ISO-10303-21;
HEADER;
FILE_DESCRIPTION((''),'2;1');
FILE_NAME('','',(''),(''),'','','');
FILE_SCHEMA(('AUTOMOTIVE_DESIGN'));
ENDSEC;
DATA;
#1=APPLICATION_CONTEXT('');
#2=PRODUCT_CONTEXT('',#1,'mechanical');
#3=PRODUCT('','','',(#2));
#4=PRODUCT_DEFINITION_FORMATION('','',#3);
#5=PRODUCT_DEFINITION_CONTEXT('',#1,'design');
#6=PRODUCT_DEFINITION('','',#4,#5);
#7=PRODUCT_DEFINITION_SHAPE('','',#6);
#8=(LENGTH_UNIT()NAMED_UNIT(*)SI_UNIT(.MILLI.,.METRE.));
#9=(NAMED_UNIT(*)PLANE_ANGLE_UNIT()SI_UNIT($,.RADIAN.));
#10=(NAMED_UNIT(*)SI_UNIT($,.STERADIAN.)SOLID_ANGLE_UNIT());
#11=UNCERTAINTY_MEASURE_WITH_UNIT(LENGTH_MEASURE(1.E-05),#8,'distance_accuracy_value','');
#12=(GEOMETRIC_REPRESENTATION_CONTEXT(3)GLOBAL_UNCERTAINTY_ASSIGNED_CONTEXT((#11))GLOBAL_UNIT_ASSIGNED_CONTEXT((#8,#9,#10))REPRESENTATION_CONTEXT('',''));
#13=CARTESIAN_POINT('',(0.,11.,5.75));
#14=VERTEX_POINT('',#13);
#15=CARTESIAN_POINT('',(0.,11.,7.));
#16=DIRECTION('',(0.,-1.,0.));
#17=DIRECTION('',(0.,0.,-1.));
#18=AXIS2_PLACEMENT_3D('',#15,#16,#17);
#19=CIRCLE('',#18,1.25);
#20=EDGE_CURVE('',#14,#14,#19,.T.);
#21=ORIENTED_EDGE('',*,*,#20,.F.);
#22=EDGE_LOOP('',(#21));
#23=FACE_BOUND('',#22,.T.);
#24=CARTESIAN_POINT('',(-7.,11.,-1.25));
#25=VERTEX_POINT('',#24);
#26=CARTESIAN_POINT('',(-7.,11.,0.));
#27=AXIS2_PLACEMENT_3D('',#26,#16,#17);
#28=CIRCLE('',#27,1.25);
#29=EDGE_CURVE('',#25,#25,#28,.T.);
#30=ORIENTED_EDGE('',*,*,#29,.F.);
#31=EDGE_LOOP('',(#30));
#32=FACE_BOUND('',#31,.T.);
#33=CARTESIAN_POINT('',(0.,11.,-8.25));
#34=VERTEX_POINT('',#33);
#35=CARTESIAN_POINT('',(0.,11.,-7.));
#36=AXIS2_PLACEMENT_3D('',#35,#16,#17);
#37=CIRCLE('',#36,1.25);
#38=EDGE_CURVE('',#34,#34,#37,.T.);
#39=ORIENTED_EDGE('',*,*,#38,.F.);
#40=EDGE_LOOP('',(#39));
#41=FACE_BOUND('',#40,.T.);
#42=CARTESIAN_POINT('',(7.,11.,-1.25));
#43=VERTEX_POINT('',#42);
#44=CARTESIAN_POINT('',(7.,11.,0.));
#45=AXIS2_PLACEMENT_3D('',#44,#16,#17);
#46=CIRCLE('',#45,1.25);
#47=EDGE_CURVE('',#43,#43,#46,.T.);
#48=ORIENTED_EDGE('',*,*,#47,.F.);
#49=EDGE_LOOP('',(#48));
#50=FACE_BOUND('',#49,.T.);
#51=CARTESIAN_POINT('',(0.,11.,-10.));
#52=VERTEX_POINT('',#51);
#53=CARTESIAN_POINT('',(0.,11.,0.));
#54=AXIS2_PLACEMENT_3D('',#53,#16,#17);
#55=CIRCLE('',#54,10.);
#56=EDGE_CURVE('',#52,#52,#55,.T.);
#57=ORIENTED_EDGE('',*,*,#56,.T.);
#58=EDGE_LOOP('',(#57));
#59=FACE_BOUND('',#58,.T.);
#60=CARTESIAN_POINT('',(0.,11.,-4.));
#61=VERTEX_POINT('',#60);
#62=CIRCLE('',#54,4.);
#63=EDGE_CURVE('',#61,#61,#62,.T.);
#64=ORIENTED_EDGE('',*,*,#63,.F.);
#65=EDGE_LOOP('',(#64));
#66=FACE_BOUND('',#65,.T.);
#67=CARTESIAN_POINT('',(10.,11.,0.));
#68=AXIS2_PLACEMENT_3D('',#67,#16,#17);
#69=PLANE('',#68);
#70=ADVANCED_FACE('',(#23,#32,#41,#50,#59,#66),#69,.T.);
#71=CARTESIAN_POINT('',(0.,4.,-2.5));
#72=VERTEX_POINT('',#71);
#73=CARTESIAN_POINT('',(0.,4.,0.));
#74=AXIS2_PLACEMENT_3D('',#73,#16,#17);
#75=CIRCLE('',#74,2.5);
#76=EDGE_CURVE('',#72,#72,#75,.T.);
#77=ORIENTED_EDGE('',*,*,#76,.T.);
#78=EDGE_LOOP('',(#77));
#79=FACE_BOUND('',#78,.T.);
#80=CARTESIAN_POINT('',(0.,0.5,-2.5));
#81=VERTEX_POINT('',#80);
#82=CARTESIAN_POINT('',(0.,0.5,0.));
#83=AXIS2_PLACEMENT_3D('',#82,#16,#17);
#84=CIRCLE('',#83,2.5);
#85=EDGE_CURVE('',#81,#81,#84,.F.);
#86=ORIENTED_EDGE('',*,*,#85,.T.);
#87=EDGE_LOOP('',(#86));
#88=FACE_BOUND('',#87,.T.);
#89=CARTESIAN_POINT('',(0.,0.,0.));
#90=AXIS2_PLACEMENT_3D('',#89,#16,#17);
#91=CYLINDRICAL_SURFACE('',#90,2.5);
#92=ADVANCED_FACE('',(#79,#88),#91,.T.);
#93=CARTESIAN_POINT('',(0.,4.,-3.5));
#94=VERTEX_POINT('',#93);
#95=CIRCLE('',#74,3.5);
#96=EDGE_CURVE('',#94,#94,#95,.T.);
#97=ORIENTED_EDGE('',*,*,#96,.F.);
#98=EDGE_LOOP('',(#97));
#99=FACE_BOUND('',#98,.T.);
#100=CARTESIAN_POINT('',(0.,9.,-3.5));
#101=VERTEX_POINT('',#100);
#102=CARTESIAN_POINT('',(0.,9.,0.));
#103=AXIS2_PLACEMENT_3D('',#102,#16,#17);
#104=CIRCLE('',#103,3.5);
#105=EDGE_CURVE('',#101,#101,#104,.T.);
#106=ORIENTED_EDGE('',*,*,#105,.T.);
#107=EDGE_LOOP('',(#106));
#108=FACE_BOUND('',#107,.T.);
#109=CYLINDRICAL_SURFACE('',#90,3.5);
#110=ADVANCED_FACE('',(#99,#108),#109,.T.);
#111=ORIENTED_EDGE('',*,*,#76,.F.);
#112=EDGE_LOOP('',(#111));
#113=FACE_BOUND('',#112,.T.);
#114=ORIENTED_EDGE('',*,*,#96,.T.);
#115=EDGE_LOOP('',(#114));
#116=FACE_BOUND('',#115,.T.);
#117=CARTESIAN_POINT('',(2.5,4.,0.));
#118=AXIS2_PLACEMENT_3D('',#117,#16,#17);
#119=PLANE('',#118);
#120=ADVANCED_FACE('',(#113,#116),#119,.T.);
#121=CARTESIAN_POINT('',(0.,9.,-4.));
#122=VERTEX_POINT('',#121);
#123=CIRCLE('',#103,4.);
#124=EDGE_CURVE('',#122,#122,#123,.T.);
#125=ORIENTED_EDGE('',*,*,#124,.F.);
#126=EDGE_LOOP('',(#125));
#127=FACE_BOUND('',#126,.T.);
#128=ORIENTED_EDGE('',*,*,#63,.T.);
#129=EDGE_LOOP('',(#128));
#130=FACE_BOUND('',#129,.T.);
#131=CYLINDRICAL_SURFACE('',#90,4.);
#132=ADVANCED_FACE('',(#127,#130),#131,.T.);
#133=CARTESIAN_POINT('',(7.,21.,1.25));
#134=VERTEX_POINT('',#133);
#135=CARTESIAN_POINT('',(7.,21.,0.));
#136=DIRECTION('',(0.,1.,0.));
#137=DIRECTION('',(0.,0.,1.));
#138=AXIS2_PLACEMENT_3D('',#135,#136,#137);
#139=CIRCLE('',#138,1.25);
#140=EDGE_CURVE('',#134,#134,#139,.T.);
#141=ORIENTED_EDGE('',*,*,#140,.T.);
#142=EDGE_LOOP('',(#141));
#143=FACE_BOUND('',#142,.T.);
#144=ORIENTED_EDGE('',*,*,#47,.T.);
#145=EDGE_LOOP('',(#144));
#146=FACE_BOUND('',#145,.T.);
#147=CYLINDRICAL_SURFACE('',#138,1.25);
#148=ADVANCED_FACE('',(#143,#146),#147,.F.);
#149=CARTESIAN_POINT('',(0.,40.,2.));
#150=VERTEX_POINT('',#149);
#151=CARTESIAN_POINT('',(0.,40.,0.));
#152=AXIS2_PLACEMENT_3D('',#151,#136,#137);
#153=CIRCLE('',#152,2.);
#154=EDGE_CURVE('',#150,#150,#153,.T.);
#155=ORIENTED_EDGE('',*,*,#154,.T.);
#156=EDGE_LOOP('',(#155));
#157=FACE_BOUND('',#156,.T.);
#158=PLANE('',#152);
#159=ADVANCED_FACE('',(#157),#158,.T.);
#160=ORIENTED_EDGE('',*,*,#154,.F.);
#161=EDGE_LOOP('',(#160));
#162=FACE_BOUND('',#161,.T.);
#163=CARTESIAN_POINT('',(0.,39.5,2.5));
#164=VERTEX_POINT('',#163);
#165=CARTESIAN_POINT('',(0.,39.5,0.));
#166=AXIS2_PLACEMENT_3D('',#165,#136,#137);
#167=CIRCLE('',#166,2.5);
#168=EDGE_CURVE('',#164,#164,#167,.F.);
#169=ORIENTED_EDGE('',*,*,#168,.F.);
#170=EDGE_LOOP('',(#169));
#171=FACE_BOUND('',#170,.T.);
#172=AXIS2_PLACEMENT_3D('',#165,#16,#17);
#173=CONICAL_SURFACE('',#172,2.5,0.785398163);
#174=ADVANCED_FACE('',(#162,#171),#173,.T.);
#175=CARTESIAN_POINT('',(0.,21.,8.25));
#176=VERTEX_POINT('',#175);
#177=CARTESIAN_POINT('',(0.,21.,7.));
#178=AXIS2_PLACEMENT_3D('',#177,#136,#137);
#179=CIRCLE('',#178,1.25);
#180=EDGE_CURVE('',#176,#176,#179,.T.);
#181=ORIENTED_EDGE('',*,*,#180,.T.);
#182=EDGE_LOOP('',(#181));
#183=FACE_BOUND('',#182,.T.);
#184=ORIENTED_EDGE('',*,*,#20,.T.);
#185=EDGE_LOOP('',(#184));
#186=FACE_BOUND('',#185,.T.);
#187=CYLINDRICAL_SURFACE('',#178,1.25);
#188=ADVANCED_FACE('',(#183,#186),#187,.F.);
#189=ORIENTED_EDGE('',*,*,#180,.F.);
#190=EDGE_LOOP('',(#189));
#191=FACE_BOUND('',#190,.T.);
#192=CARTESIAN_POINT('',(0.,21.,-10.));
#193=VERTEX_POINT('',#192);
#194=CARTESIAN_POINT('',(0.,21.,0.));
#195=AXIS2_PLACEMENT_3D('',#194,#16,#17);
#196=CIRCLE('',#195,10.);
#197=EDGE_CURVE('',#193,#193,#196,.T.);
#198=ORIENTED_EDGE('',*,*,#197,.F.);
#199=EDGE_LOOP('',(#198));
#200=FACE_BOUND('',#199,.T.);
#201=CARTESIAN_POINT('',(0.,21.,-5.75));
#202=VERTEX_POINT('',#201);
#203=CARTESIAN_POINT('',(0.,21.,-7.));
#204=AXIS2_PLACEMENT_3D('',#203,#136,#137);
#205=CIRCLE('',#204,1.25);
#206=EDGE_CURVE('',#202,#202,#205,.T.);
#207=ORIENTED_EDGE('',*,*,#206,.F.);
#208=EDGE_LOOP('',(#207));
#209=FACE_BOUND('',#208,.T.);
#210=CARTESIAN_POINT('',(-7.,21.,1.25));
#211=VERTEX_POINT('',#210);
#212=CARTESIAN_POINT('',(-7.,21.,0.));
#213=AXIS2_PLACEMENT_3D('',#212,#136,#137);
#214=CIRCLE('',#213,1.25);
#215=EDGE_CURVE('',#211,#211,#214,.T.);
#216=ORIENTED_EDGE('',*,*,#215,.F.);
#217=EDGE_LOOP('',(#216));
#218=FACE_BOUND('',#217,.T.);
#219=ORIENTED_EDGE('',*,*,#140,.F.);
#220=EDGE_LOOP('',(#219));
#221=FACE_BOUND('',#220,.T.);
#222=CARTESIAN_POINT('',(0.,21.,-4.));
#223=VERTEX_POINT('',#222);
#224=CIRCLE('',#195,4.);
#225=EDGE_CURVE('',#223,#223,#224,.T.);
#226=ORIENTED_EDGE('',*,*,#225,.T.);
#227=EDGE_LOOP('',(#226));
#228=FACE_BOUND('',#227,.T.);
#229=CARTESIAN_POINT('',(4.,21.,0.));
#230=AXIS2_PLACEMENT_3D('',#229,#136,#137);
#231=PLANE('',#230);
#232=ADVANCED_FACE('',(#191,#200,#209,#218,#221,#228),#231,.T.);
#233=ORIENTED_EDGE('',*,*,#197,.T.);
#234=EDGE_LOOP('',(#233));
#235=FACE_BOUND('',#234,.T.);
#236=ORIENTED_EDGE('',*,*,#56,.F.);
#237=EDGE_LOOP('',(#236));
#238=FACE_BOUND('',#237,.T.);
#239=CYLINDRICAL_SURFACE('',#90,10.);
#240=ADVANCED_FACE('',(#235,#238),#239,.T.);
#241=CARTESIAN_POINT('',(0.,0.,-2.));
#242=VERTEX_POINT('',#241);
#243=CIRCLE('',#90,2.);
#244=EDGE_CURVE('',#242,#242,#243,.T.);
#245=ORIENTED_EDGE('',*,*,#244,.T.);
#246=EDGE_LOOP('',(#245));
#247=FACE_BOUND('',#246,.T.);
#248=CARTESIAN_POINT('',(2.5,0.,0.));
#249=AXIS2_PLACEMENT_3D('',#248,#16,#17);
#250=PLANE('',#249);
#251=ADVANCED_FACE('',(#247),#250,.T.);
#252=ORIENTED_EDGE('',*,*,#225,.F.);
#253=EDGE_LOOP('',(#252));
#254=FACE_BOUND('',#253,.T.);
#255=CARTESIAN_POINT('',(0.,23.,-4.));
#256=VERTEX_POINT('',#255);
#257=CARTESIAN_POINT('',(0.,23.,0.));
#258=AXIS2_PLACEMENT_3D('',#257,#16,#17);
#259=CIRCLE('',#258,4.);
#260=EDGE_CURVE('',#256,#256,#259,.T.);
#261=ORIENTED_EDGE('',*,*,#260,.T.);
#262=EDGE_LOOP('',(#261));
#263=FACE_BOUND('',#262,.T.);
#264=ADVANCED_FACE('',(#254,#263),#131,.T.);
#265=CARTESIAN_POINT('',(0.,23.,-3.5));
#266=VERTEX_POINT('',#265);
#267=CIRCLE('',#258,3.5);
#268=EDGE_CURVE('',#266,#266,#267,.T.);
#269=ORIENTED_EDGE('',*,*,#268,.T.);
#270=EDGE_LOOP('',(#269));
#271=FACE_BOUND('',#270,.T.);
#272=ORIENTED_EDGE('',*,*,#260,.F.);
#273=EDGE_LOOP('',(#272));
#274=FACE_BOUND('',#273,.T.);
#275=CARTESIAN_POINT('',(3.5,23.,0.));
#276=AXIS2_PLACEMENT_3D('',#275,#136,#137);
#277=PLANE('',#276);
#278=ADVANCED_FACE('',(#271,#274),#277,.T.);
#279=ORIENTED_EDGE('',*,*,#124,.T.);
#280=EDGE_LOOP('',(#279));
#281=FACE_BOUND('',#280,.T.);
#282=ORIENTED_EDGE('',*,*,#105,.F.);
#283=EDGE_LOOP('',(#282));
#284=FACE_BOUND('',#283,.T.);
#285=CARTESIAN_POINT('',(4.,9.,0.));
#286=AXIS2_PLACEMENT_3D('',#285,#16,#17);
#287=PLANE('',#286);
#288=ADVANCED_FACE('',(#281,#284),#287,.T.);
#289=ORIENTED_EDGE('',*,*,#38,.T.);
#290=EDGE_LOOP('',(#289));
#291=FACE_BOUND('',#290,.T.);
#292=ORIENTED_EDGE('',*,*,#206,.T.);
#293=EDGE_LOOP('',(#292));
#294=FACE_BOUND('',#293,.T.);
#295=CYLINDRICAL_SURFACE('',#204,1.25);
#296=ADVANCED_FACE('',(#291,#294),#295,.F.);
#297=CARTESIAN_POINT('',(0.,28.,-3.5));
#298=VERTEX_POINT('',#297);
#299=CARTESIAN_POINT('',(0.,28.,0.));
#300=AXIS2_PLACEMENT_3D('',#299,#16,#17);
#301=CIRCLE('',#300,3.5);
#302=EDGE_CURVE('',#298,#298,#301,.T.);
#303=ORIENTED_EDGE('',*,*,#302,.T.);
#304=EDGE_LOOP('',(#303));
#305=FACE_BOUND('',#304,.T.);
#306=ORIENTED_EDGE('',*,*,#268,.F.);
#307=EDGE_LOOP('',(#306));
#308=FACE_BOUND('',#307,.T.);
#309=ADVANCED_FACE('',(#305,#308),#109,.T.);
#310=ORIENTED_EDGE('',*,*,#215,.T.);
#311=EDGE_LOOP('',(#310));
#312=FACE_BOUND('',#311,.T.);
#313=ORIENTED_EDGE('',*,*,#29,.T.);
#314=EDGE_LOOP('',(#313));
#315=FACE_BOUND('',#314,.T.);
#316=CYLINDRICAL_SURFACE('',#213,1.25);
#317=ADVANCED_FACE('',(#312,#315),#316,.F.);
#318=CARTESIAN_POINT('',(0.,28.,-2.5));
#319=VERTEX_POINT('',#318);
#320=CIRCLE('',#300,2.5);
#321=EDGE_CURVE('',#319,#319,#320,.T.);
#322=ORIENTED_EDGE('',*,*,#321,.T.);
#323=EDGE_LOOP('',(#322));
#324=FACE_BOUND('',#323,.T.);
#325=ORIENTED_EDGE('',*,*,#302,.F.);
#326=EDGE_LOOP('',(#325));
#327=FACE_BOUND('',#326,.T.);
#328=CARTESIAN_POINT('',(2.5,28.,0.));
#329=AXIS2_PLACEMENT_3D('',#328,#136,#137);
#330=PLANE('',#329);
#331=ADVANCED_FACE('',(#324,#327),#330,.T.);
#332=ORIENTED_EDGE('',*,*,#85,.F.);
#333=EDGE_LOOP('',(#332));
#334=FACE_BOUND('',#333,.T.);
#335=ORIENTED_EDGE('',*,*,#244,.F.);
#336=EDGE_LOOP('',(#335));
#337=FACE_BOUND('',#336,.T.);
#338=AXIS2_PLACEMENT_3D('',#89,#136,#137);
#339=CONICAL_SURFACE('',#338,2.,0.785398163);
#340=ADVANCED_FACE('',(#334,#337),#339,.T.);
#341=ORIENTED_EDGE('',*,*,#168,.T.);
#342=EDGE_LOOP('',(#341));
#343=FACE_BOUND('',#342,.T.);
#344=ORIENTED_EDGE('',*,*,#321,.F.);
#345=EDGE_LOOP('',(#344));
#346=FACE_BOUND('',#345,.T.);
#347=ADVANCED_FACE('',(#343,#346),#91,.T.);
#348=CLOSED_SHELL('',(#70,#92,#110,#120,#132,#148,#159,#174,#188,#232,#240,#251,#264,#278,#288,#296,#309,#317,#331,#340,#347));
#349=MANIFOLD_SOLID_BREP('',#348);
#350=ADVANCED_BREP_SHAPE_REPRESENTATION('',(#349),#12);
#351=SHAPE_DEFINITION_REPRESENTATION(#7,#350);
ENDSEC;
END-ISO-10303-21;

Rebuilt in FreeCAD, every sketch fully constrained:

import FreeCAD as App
import Part
import Sketcher


def edges_at(feature, points):
    """Names of the edges that pass closest to the given points."""
    edges = feature.Shape.Edges
    near = lambda p: min(range(len(edges)), key=lambda i: edges[i].distToShape(Part.Vertex(*p))[0])
    return sorted({f"Edge{near(p) + 1}" for p in points})

doc = App.newDocument("Part")
body = doc.addObject("PartDesign::Body", "Body")

sketch1 = body.newObject("Sketcher::SketchObject", "Sketch")
sketch1.AttachmentSupport = (doc.getObject("XY_Plane"), [""])
sketch1.MapMode = "FlatFace"
sketch1.addGeometry([
    Part.LineSegment(App.Vector(0, 40, 0), App.Vector(0, 0, 0)),
    Part.LineSegment(App.Vector(0, 0, 0), App.Vector(2.5, 0, 0)),
    Part.LineSegment(App.Vector(2.5, 0, 0), App.Vector(2.5, 4, 0)),
    Part.LineSegment(App.Vector(2.5, 4, 0), App.Vector(3.5, 4, 0)),
    Part.LineSegment(App.Vector(3.5, 4, 0), App.Vector(3.5, 9, 0)),
    Part.LineSegment(App.Vector(3.5, 9, 0), App.Vector(4, 9, 0)),
    Part.LineSegment(App.Vector(4, 9, 0), App.Vector(4, 11, 0)),
    Part.LineSegment(App.Vector(4, 11, 0), App.Vector(10, 11, 0)),
    Part.LineSegment(App.Vector(10, 11, 0), App.Vector(10, 21, 0)),
    Part.LineSegment(App.Vector(10, 21, 0), App.Vector(4, 21, 0)),
    Part.LineSegment(App.Vector(4, 21, 0), App.Vector(4, 23, 0)),
    Part.LineSegment(App.Vector(4, 23, 0), App.Vector(3.5, 23, 0)),
    Part.LineSegment(App.Vector(3.5, 23, 0), App.Vector(3.5, 28, 0)),
    Part.LineSegment(App.Vector(3.5, 28, 0), App.Vector(2.5, 28, 0)),
    Part.LineSegment(App.Vector(2.5, 28, 0), App.Vector(2.5, 40, 0)),
    Part.LineSegment(App.Vector(2.5, 40, 0), App.Vector(0, 40, 0)),
], False)
sketch1.addConstraint([
    Sketcher.Constraint("Coincident", 0, 2, 1, 1),
    Sketcher.Constraint("Coincident", 1, 2, 2, 1),
    Sketcher.Constraint("Coincident", 2, 2, 3, 1),
    Sketcher.Constraint("Coincident", 3, 2, 4, 1),
    Sketcher.Constraint("Coincident", 4, 2, 5, 1),
    Sketcher.Constraint("Coincident", 5, 2, 6, 1),
    Sketcher.Constraint("Coincident", 6, 2, 7, 1),
    Sketcher.Constraint("Coincident", 7, 2, 8, 1),
    Sketcher.Constraint("Coincident", 8, 2, 9, 1),
    Sketcher.Constraint("Coincident", 9, 2, 10, 1),
    Sketcher.Constraint("Coincident", 10, 2, 11, 1),
    Sketcher.Constraint("Coincident", 11, 2, 12, 1),
    Sketcher.Constraint("Coincident", 12, 2, 13, 1),
    Sketcher.Constraint("Coincident", 13, 2, 14, 1),
    Sketcher.Constraint("Coincident", 14, 2, 15, 1),
    Sketcher.Constraint("Coincident", 15, 2, 0, 1),
    Sketcher.Constraint("Vertical", 0),
    Sketcher.Constraint("Horizontal", 1),
    Sketcher.Constraint("Vertical", 2),
    Sketcher.Constraint("Horizontal", 3),
    Sketcher.Constraint("Vertical", 4),
    Sketcher.Constraint("Horizontal", 5),
    Sketcher.Constraint("Vertical", 6),
    Sketcher.Constraint("Horizontal", 7),
    Sketcher.Constraint("Vertical", 8),
    Sketcher.Constraint("Horizontal", 9),
    Sketcher.Constraint("Vertical", 10),
    Sketcher.Constraint("Horizontal", 11),
    Sketcher.Constraint("Vertical", 12),
    Sketcher.Constraint("Horizontal", 13),
    Sketcher.Constraint("Vertical", 14),
    Sketcher.Constraint("Horizontal", 15),
    Sketcher.Constraint("Coincident", 0, 2, -1, 1),
    Sketcher.Constraint("Vertical", 6, 2, 9, 2),
    Sketcher.Constraint("Vertical", 4, 2, 11, 2),
    Sketcher.Constraint("Vertical", 2, 2, 13, 2),
    Sketcher.Constraint("Equal", 6, 10),
    Sketcher.Constraint("Equal", 4, 12),
    Sketcher.Constraint("DistanceX", 3, 1, 3, 2, 1.0),
    Sketcher.Constraint("DistanceX", 7, 1, 7, 2, 6.0),
    Sketcher.Constraint("DistanceY", 0, 2, 0, 1, 40.0),
    Sketcher.Constraint("DistanceY", 2, 1, 2, 2, 4.0),
    Sketcher.Constraint("DistanceY", 4, 1, 4, 2, 5.0),
    Sketcher.Constraint("DistanceY", 6, 1, 6, 2, 2.0),
    Sketcher.Constraint("DistanceY", 8, 1, 8, 2, 10.0),
    Sketcher.Constraint("DistanceX", 1, 1, 1, 2, 2.5),
    Sketcher.Constraint("DistanceX", 5, 1, 5, 2, 0.5),
])
revolution = body.newObject("PartDesign::Revolution", "Revolution")
revolution.Profile = sketch1
revolution.ReferenceAxis = (sketch1, ["V_Axis"])
revolution.Angle = 360

sketch2 = body.newObject("Sketcher::SketchObject", "Sketch001")
sketch2.AttachmentSupport = (doc.getObject("XZ_Plane"), [""])
sketch2.MapMode = "FlatFace"
sketch2.AttachmentOffset = App.Placement(App.Vector(0, 0, -21), App.Rotation())
sketch2.addGeometry([
    Part.Circle(App.Vector(0, -7, 0), App.Vector(0, 0, 1), 1.2),
    Part.Circle(App.Vector(7, 0, 0), App.Vector(0, 0, 1), 1.2),
    Part.Circle(App.Vector(0, 7, 0), App.Vector(0, 0, 1), 1.2),
    Part.Circle(App.Vector(-7, 0, 0), App.Vector(0, 0, 1), 1.2),
], False)
sketch2.addConstraint([
    Sketcher.Constraint("Equal", 0, 1),
    Sketcher.Constraint("Equal", 1, 2),
    Sketcher.Constraint("Equal", 2, 3),
    Sketcher.Constraint("Symmetric", 0, 3, 2, 3, -1, 1),
    Sketcher.Constraint("Symmetric", 1, 3, 3, 3, -1, 1),
    Sketcher.Constraint("PointOnObject", 0, 3, -2),
    Sketcher.Constraint("PointOnObject", 1, 3, -1),
    Sketcher.Constraint("Diameter", 0, 2.5),
    Sketcher.Constraint("DistanceY", 0, 3, -1, 1, 7.0),
    Sketcher.Constraint("DistanceX", -1, 1, 1, 3, 7.0),
])
doc.recompute()
hole = body.newObject("PartDesign::Hole", "Hole")
hole.Profile = sketch2
hole.ThreadType = "None"
hole.Diameter = 2.5
hole.DepthType = "ThroughAll"
hole.Reversed = True
doc.recompute()

chamfer = body.newObject("PartDesign::Chamfer", "Chamfer")
chamfer.Base = (hole, edges_at(hole, [(0, 0, 2.5), (0, 40, 2.5)]))
chamfer.Size = 0.5

doc.recompute()
